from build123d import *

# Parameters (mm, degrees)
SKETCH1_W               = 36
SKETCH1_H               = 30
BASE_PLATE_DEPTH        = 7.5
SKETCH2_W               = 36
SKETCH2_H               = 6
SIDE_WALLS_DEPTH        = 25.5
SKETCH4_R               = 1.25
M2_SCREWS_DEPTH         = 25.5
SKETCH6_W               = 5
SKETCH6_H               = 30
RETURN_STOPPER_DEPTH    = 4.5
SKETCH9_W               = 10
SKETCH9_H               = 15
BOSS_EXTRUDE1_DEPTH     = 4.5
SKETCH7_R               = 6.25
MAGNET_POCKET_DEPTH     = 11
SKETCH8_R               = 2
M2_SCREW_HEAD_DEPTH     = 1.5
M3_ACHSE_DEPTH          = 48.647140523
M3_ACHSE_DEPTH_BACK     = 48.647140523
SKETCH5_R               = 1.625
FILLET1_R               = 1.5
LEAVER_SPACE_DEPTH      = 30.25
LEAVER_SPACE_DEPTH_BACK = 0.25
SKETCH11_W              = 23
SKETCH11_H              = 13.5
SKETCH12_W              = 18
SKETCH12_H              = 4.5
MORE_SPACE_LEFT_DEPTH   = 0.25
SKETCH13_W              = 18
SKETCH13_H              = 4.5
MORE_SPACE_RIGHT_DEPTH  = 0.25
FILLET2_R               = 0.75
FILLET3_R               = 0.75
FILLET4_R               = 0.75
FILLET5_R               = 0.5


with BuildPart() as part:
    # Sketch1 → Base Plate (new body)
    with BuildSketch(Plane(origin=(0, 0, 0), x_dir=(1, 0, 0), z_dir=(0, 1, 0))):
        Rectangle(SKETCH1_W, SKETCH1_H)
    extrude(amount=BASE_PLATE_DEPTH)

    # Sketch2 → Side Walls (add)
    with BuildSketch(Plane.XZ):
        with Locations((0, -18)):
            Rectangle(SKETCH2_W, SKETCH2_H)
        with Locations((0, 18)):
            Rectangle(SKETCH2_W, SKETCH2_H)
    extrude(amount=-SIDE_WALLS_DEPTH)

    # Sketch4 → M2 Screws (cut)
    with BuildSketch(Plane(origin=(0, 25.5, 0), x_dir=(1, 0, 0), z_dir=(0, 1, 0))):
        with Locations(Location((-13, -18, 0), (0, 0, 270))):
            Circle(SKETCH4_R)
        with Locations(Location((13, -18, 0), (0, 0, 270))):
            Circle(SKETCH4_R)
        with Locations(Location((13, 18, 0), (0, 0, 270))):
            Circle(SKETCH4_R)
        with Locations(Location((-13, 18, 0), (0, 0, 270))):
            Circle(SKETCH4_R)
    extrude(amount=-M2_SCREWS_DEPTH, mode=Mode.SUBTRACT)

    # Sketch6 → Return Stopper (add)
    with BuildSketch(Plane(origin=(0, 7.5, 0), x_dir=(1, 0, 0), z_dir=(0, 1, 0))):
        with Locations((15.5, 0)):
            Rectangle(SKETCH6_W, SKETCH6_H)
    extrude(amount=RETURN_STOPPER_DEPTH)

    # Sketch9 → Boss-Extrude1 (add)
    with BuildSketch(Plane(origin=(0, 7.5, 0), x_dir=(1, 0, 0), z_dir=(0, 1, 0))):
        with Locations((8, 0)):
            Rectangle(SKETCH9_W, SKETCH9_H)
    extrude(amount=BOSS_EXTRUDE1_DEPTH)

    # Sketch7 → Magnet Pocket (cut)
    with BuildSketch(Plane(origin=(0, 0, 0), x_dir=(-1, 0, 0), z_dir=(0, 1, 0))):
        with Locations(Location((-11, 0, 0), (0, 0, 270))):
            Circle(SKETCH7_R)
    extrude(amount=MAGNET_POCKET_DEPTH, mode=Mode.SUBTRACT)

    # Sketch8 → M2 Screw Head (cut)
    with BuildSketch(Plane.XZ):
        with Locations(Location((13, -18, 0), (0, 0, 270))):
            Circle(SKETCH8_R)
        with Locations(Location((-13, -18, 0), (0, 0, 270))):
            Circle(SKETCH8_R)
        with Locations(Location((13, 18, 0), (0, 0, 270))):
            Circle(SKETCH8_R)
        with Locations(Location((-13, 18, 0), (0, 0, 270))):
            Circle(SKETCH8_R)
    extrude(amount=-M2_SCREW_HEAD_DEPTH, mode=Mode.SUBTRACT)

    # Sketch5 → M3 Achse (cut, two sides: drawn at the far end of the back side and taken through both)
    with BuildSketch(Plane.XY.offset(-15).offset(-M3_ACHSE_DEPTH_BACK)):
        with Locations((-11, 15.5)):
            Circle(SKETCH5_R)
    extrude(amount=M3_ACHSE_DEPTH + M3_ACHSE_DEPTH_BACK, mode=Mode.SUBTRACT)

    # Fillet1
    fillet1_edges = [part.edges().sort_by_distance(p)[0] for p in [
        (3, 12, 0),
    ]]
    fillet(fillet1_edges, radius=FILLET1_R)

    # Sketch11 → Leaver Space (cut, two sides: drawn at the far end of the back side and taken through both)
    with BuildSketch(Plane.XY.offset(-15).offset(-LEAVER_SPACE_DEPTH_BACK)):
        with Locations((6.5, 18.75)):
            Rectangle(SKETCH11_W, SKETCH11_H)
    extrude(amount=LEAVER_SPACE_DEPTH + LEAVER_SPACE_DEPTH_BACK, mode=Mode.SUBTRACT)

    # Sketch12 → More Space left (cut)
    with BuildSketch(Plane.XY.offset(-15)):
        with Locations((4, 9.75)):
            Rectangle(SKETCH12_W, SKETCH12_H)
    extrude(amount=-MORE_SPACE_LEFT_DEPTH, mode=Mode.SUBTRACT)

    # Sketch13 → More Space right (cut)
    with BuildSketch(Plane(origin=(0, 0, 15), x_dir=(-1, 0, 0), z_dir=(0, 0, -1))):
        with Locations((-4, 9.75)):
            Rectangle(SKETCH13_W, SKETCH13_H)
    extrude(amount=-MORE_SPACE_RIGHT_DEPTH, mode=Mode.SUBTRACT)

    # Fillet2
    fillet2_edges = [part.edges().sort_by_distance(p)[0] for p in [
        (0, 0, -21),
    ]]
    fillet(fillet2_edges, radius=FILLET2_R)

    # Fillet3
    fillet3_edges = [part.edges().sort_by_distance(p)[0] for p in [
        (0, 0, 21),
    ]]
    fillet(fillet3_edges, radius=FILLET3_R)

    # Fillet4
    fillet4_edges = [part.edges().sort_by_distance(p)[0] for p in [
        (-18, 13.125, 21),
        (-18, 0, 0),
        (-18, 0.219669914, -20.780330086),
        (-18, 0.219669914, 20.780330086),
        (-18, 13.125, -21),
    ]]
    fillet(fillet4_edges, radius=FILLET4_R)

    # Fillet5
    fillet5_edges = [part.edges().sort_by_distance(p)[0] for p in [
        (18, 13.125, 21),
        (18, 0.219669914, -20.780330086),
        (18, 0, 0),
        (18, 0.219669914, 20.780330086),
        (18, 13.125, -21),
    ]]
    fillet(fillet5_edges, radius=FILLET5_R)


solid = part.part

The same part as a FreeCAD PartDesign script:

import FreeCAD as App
import Part
import Sketcher
from FreeCAD import Vector


def edges_at(feature, points):
    """Names of the edges that pass closest to the given points."""
    edges = feature.Shape.Edges
    near = lambda p: min(range(len(edges)), key=lambda i: edges[i].distToShape(Part.Vertex(*p))[0])
    return sorted({f"Edge{near(p) + 1}" for p in points})


def add_polygon(sketch, points):
    """Adds a closed chain of lines whose ends are joined by coincident constraints."""
    first, n = sketch.GeometryCount, len(points)
    for a, b in zip(points, points[1:] + points[:1]):
        sketch.addGeometry(Part.LineSegment(App.Vector(*a, 0), App.Vector(*b, 0)), False)
    for i in range(n):
        sketch.addConstraint(Sketcher.Constraint("Coincident", first + i, 2, first + (i + 1) % n, 1))

doc = App.newDocument("Part")
body = doc.addObject("PartDesign::Body", "Body")

# Sketch on XZ plane
sketch1 = body.newObject("Sketcher::SketchObject", "Sketch")
sketch1.AttachmentSupport = (doc.getObject("XZ_Plane"), [""])
sketch1.MapMode = "FlatFace"
add_polygon(sketch1, [(-18, -15), (-18, 15), (18, 15), (18, -15)])  # lines 0-3
sketch1.addConstraint(Sketcher.Constraint("Vertical", 0))
sketch1.addConstraint(Sketcher.Constraint("Horizontal", 1))
sketch1.addConstraint(Sketcher.Constraint("Vertical", 2))
sketch1.addConstraint(Sketcher.Constraint("Horizontal", 3))
sketch1.addConstraint(Sketcher.Constraint("Symmetric", 0, 2, 2, 2, -1, 1))
sketch1.addConstraint(Sketcher.Constraint("DistanceX", 1, 1, 1, 2, 36.0))
sketch1.addConstraint(Sketcher.Constraint("DistanceY", 0, 1, 0, 2, 30.0))
pad1 = body.newObject("PartDesign::Pad", "Pad")
pad1.Profile = sketch1
pad1.Length = 7.5
pad1.Reversed = True

# Sketch on XZ plane
sketch2 = body.newObject("Sketcher::SketchObject", "Sketch001")
sketch2.AttachmentSupport = (doc.getObject("XZ_Plane"), [""])
sketch2.MapMode = "FlatFace"
add_polygon(sketch2, [(-18, -15), (-18, -21), (18, -21), (18, -15)])  # lines 0-3
add_polygon(sketch2, [(-18, 21), (-18, 15), (18, 15), (18, 21)])  # lines 4-7
sketch2.addConstraint(Sketcher.Constraint("Vertical", 0))
sketch2.addConstraint(Sketcher.Constraint("Horizontal", 1))
sketch2.addConstraint(Sketcher.Constraint("Vertical", 2))
sketch2.addConstraint(Sketcher.Constraint("Horizontal", 3))
sketch2.addConstraint(Sketcher.Constraint("Vertical", 4))
sketch2.addConstraint(Sketcher.Constraint("Horizontal", 5))
sketch2.addConstraint(Sketcher.Constraint("Vertical", 6))
sketch2.addConstraint(Sketcher.Constraint("Horizontal", 7))
sketch2.addConstraint(Sketcher.Constraint("Symmetric", 2, 2, 4, 2, -1, 1))
sketch2.addConstraint(Sketcher.Constraint("Symmetric", 0, 2, 6, 2, -1, 1))
sketch2.addConstraint(Sketcher.Constraint("Vertical", 3, 2, 4, 2))
sketch2.addConstraint(Sketcher.Constraint("DistanceX", 1, 1, 1, 2, 36.0))
sketch2.addConstraint(Sketcher.Constraint("DistanceY", 0, 2, 0, 1, 6.0))
sketch2.addConstraint(Sketcher.Constraint("DistanceY", 0, 2, -1, 1, 21.0))
pad2 = body.newObject("PartDesign::Pad", "Pad001")
pad2.Profile = sketch2
pad2.Length = 25.5
pad2.Reversed = True

# Sketch on XZ plane
sketch3 = body.newObject("Sketcher::SketchObject", "Sketch002")
sketch3.AttachmentSupport = (doc.getObject("XZ_Plane"), [""])
sketch3.MapMode = "FlatFace"
sketch3.AttachmentOffset = App.Placement(Vector(0, 0, -25.5), App.Rotation())
sketch3.addGeometry(Part.Circle(Vector(-13, 18, 0), Vector(0, 0, 1), 1.2), False)
sketch3.addGeometry(Part.Circle(Vector(13, 18, 0), Vector(0, 0, 1), 1.2), False)
sketch3.addGeometry(Part.Circle(Vector(13, -18, 0), Vector(0, 0, 1), 1.2), False)
sketch3.addGeometry(Part.Circle(Vector(-13, -18, 0), Vector(0, 0, 1), 1.2), False)
sketch3.addConstraint(Sketcher.Constraint("Equal", 0, 1))
sketch3.addConstraint(Sketcher.Constraint("Equal", 1, 2))
sketch3.addConstraint(Sketcher.Constraint("Equal", 2, 3))
sketch3.addConstraint(Sketcher.Constraint("Symmetric", 0, 3, 2, 3, -1, 1))
sketch3.addConstraint(Sketcher.Constraint("Symmetric", 1, 3, 3, 3, -1, 1))
sketch3.addConstraint(Sketcher.Constraint("Symmetric", 0, 3, 1, 3, -2))
sketch3.addConstraint(Sketcher.Constraint("Diameter", 0, 2.5))
sketch3.addConstraint(Sketcher.Constraint("DistanceX", 0, 3, -1, 1, 13.0))
sketch3.addConstraint(Sketcher.Constraint("DistanceY", -1, 1, 0, 3, 18.0))
pocket1 = body.newObject("PartDesign::Pocket", "Pocket")
pocket1.Profile = sketch3
pocket1.Length = 25.5
pocket1.Reversed = True

# Sketch on XZ plane
sketch4 = body.newObject("Sketcher::SketchObject", "Sketch003")
sketch4.AttachmentSupport = (doc.getObject("XZ_Plane"), [""])
sketch4.MapMode = "FlatFace"
sketch4.AttachmentOffset = App.Placement(Vector(0, 0, -7.5), App.Rotation())
add_polygon(sketch4, [(13, -15), (13, 15), (18, 15), (18, -15)])  # lines 0-3
sketch4.addConstraint(Sketcher.Constraint("Vertical", 0))
sketch4.addConstraint(Sketcher.Constraint("Horizontal", 1))
sketch4.addConstraint(Sketcher.Constraint("Vertical", 2))
sketch4.addConstraint(Sketcher.Constraint("Horizontal", 3))
sketch4.addConstraint(Sketcher.Constraint("DistanceX", 1, 1, 1, 2, 5.0))
sketch4.addConstraint(Sketcher.Constraint("DistanceY", 0, 1, 0, 2, 30.0))
sketch4.addConstraint(Sketcher.Constraint("DistanceX", -1, 1, 0, 2, 13.0))
sketch4.addConstraint(Sketcher.Constraint("DistanceY", -1, 1, 0, 2, 15.0))
pad3 = body.newObject("PartDesign::Pad", "Pad002")
pad3.Profile = sketch4
pad3.Length = 4.5
pad3.Reversed = True

# Sketch on XZ plane
sketch5 = body.newObject("Sketcher::SketchObject", "Sketch004")
sketch5.AttachmentSupport = (doc.getObject("XZ_Plane"), [""])
sketch5.MapMode = "FlatFace"
sketch5.AttachmentOffset = App.Placement(Vector(0, 0, -7.5), App.Rotation())
add_polygon(sketch5, [(3, -8), (3, 8), (13, 8), (13, -8)])  # lines 0-3
sketch5.addConstraint(Sketcher.Constraint("Vertical", 0))
sketch5.addConstraint(Sketcher.Constraint("Horizontal", 1))
sketch5.addConstraint(Sketcher.Constraint("Vertical", 2))
sketch5.addConstraint(Sketcher.Constraint("Horizontal", 3))
sketch5.addConstraint(Sketcher.Constraint("DistanceX", 1, 1, 1, 2, 10.0))
sketch5.addConstraint(Sketcher.Constraint("DistanceY", 0, 1, 0, 2, 15.0))
sketch5.addConstraint(Sketcher.Constraint("DistanceX", -1, 1, 0, 2, 3.0))
sketch5.addConstraint(Sketcher.Constraint("DistanceY", -1, 1, 0, 2, 7.5))
pad4 = body.newObject("PartDesign::Pad", "Pad003")
pad4.Profile = sketch5
pad4.Length = 4.5
pad4.Reversed = True

# Sketch on XZ plane
sketch6 = body.newObject("Sketcher::SketchObject", "Sketch005")
sketch6.AttachmentSupport = (doc.getObject("XZ_Plane"), [""])
sketch6.MapMode = "FlatFace"
sketch6.addGeometry(Part.Circle(Vector(11, 0, 0), Vector(0, 0, 1), 6), False)
sketch6.addConstraint(Sketcher.Constraint("PointOnObject", 0, 3, -1))
sketch6.addConstraint(Sketcher.Constraint("Diameter", 0, 12.5))
sketch6.addConstraint(Sketcher.Constraint("DistanceX", -1, 1, 0, 3, 11.0))
pocket2 = body.newObject("PartDesign::Pocket", "Pocket001")
pocket2.Profile = sketch6
pocket2.Length = 11

# Sketch on XZ plane
sketch7 = body.newObject("Sketcher::SketchObject", "Sketch006")
sketch7.AttachmentSupport = (doc.getObject("XZ_Plane"), [""])
sketch7.MapMode = "FlatFace"
sketch7.addGeometry(Part.Circle(Vector(13, -18, 0), Vector(0, 0, 1), 2), False)
sketch7.addGeometry(Part.Circle(Vector(-13, -18, 0), Vector(0, 0, 1), 2), False)
sketch7.addGeometry(Part.Circle(Vector(13, 18, 0), Vector(0, 0, 1), 2), False)
sketch7.addGeometry(Part.Circle(Vector(-13, 18, 0), Vector(0, 0, 1), 2), False)
sketch7.addConstraint(Sketcher.Constraint("Equal", 0, 1))
sketch7.addConstraint(Sketcher.Constraint("Equal", 1, 2))
sketch7.addConstraint(Sketcher.Constraint("Equal", 2, 3))
sketch7.addConstraint(Sketcher.Constraint("Symmetric", 1, 3, 2, 3, -1, 1))
sketch7.addConstraint(Sketcher.Constraint("Symmetric", 0, 3, 3, 3, -1, 1))
sketch7.addConstraint(Sketcher.Constraint("Symmetric", 0, 3, 1, 3, -2))
sketch7.addConstraint(Sketcher.Constraint("Diameter", 0, 4.0))
sketch7.addConstraint(Sketcher.Constraint("DistanceX", -1, 1, 0, 3, 13.0))
sketch7.addConstraint(Sketcher.Constraint("DistanceY", 0, 3, -1, 1, 18.0))
pocket3 = body.newObject("PartDesign::Pocket", "Pocket002")
pocket3.Profile = sketch7
pocket3.Length = 1.5

# Sketch on XY plane
sketch8 = body.newObject("Sketcher::SketchObject", "Sketch007")
sketch8.AttachmentSupport = (doc.getObject("XY_Plane"), [""])
sketch8.MapMode = "FlatFace"
sketch8.AttachmentOffset = App.Placement(Vector(0, 0, -15), App.Rotation())
sketch8.addGeometry(Part.Circle(Vector(-11, 15.5, 0), Vector(0, 0, 1), 1.6), False)
sketch8.addConstraint(Sketcher.Constraint("Diameter", 0, 3.25))
sketch8.addConstraint(Sketcher.Constraint("DistanceX", 0, 3, -1, 1, 11.0))
sketch8.addConstraint(Sketcher.Constraint("DistanceY", -1, 1, 0, 3, 15.5))
pocket4 = body.newObject("PartDesign::Pocket", "Pocket003")
pocket4.Profile = sketch8
pocket4.Type = "ThroughAll"
pocket4.Midplane = True
doc.recompute()

fillet = body.newObject("PartDesign::Fillet", "Fillet")
fillet.Base = (pocket4, edges_at(pocket4, [(3, 12, 0)]))
fillet.Radius = 1.5

# Sketch on XY plane
sketch9 = body.newObject("Sketcher::SketchObject", "Sketch008")
sketch9.AttachmentSupport = (doc.getObject("XY_Plane"), [""])
sketch9.MapMode = "FlatFace"
sketch9.AttachmentOffset = App.Placement(Vector(0, 0, -15), App.Rotation())
add_polygon(sketch9, [(-5, 26), (-5, 12), (18, 12), (18, 26)])  # lines 0-3
sketch9.addConstraint(Sketcher.Constraint("Vertical", 0))
sketch9.addConstraint(Sketcher.Constraint("Horizontal", 1))
sketch9.addConstraint(Sketcher.Constraint("Vertical", 2))
sketch9.addConstraint(Sketcher.Constraint("Horizontal", 3))
sketch9.addConstraint(Sketcher.Constraint("DistanceX", 1, 1, 1, 2, 23.0))
sketch9.addConstraint(Sketcher.Constraint("DistanceY", 0, 2, 0, 1, 13.5))
sketch9.addConstraint(Sketcher.Constraint("DistanceX", 0, 2, -1, 1, 5.0))
sketch9.addConstraint(Sketcher.Constraint("DistanceY", -1, 1, 0, 2, 12.0))
pocket5 = body.newObject("PartDesign::Pocket", "Pocket004")
pocket5.Profile = sketch9
pocket5.Type = "TwoLengths"
pocket5.Length = 30.25
pocket5.Length2 = 0.25
pocket5.Reversed = True

# Sketch on XY plane
sketch10 = body.newObject("Sketcher::SketchObject", "Sketch009")
sketch10.AttachmentSupport = (doc.getObject("XY_Plane"), [""])
sketch10.MapMode = "FlatFace"
sketch10.AttachmentOffset = App.Placement(Vector(0, 0, -15), App.Rotation())
add_polygon(sketch10, [(-5, 12), (-5, 7.5), (13, 7.5), (13, 12)])  # lines 0-3
sketch10.addConstraint(Sketcher.Constraint("Vertical", 0))
sketch10.addConstraint(Sketcher.Constraint("Horizontal", 1))
sketch10.addConstraint(Sketcher.Constraint("Vertical", 2))
sketch10.addConstraint(Sketcher.Constraint("Horizontal", 3))
sketch10.addConstraint(Sketcher.Constraint("DistanceX", 1, 1, 1, 2, 18.0))
sketch10.addConstraint(Sketcher.Constraint("DistanceY", 0, 2, 0, 1, 4.5))
sketch10.addConstraint(Sketcher.Constraint("DistanceX", 0, 2, -1, 1, 5.0))
sketch10.addConstraint(Sketcher.Constraint("DistanceY", -1, 1, 2, 2, 12.0))
pocket6 = body.newObject("PartDesign::Pocket", "Pocket005")
pocket6.Profile = sketch10
pocket6.Length = 0.25

# Sketch on XY plane
sketch11 = body.newObject("Sketcher::SketchObject", "Sketch010")
sketch11.AttachmentSupport = (doc.getObject("XY_Plane"), [""])
sketch11.MapMode = "FlatFace"
sketch11.AttachmentOffset = App.Placement(Vector(0, 0, 15), App.Rotation())
add_polygon(sketch11, [(13, 12), (13, 7.5), (-5, 7.5), (-5, 12)])  # lines 0-3
sketch11.addConstraint(Sketcher.Constraint("Vertical", 0))
sketch11.addConstraint(Sketcher.Constraint("Horizontal", 1))
sketch11.addConstraint(Sketcher.Constraint("Vertical", 2))
sketch11.addConstraint(Sketcher.Constraint("Horizontal", 3))
sketch11.addConstraint(Sketcher.Constraint("DistanceX", 1, 2, 1, 1, 18.0))
sketch11.addConstraint(Sketcher.Constraint("DistanceY", 0, 2, 0, 1, 4.5))
sketch11.addConstraint(Sketcher.Constraint("DistanceX", -1, 1, 0, 2, 13.0))
sketch11.addConstraint(Sketcher.Constraint("DistanceY", -1, 1, 2, 2, 12.0))
pocket7 = body.newObject("PartDesign::Pocket", "Pocket006")
pocket7.Profile = sketch11
pocket7.Length = 0.25
pocket7.Reversed = True
doc.recompute()

fillet2 = body.newObject("PartDesign::Fillet", "Fillet001")
fillet2.Base = (pocket7, edges_at(pocket7, [(0, 0, -21)]))
fillet2.Radius = 0.75
doc.recompute()

fillet3 = body.newObject("PartDesign::Fillet", "Fillet002")
fillet3.Base = (fillet2, edges_at(fillet2, [(0, 0, 21)]))
fillet3.Radius = 0.75
doc.recompute()

fillet4 = body.newObject("PartDesign::Fillet", "Fillet003")
fillet4.Base = (fillet3, edges_at(fillet3, [
    (-18, 13.125, 21),
    (-18, 0, 0),
    (-18, 0.22, -20.78),
    (-18, 0.22, 20.78),
    (-18, 13.125, -21),
]))
fillet4.Radius = 0.75
doc.recompute()

fillet5 = body.newObject("PartDesign::Fillet", "Fillet004")
fillet5.Base = (fillet4, edges_at(fillet4, [
    (18, 13.125, 21),
    (18, 0.22, -20.78),
    (18, 0, 0),
    (18, 0.22, 20.78),
    (18, 13.125, -21),
]))
fillet5.Radius = 0.5

doc.recompute()
